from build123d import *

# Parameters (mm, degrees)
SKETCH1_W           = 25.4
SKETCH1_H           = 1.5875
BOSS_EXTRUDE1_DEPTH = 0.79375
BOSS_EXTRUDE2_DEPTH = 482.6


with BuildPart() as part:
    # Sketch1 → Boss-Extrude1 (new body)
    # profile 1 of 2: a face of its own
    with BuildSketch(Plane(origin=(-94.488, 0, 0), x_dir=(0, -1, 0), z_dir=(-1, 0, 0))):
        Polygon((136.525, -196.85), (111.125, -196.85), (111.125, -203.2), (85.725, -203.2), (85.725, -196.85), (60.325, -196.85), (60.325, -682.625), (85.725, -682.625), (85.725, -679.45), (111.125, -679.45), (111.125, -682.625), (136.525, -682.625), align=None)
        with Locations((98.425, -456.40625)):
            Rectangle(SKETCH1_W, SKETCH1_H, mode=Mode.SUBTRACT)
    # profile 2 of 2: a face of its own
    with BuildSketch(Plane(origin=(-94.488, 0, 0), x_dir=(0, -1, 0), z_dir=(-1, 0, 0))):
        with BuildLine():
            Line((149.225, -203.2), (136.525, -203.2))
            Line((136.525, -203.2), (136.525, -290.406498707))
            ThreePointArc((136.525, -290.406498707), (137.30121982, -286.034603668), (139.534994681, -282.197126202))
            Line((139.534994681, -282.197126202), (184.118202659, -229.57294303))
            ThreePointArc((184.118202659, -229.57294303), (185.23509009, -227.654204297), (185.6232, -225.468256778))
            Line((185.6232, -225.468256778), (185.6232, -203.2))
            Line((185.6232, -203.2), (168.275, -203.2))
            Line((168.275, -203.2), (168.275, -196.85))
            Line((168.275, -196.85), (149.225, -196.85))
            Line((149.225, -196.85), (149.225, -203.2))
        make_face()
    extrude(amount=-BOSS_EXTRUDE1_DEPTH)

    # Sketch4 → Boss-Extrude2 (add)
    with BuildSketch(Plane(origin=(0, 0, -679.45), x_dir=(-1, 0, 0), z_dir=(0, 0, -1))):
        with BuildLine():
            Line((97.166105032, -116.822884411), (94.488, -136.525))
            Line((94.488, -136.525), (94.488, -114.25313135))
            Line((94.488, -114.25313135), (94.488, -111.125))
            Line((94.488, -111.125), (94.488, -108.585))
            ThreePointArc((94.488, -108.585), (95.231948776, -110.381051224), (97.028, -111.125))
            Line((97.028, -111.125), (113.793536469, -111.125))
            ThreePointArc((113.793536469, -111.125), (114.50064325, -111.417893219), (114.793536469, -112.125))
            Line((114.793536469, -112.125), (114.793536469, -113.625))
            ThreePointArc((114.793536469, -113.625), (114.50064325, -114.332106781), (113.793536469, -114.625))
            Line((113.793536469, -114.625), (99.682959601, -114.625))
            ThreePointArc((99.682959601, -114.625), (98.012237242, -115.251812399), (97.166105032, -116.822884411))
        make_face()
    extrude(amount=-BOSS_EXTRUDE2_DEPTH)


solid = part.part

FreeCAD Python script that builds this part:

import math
import FreeCAD as App
import Part
import Sketcher
from FreeCAD import Vector
Q = App.Units.Quantity


def add_polygon(sketch, points):
    """Adds a closed chain of lines whose ends are joined by coincident constraints."""
    first, n = sketch.GeometryCount, len(points)
    for a, b in zip(points, points[1:] + points[:1]):
        sketch.addGeometry(Part.LineSegment(App.Vector(*a, 0), App.Vector(*b, 0)), False)
    for i in range(n):
        sketch.addConstraint(Sketcher.Constraint("Coincident", first + i, 2, first + (i + 1) % n, 1))

doc = App.newDocument("Part")
body = doc.addObject("PartDesign::Body", "Body")

# Sketch on YZ plane
sketch1 = doc.addObject("Sketcher::SketchObject", "Sketch")
body.addObject(sketch1)
sketch1.AttachmentSupport = (doc.YZ_Plane, [""])
sketch1.MapMode = "FlatFace"
sketch1.AttachmentOffset = App.Placement(Vector(0, 0, -3.72 * 25.4), App.Rotation())
sketch1.addGeometry(Part.LineSegment(Vector(-136.525, -196.85, 0), Vector(-111.125, -196.85, 0)), False)  # 0
sketch1.addGeometry(Part.LineSegment(Vector(-111.125, -196.85, 0), Vector(-111.125, -203.2, 0)), False)  # 1
sketch1.addGeometry(Part.LineSegment(Vector(-111.125, -203.2, 0), Vector(-85.725, -203.2, 0)), False)  # 2
sketch1.addGeometry(Part.LineSegment(Vector(-85.725, -203.2, 0), Vector(-85.725, -196.85, 0)), False)  # 3
sketch1.addGeometry(Part.LineSegment(Vector(-85.725, -196.85, 0), Vector(-60.325, -196.85, 0)), False)  # 4
sketch1.addGeometry(Part.LineSegment(Vector(-60.325, -196.85, 0), Vector(-60.325, -682.625, 0)), False)  # 5
sketch1.addGeometry(Part.LineSegment(Vector(-60.325, -682.625, 0), Vector(-85.725, -682.625, 0)), False)  # 6
sketch1.addGeometry(Part.LineSegment(Vector(-85.725, -682.625, 0), Vector(-85.725, -679.45, 0)), False)  # 7
sketch1.addGeometry(Part.LineSegment(Vector(-85.725, -679.45, 0), Vector(-111.125, -679.45, 0)), False)  # 8
sketch1.addGeometry(Part.LineSegment(Vector(-111.125, -679.45, 0), Vector(-111.125, -682.625, 0)), False)  # 9
sketch1.addGeometry(Part.LineSegment(Vector(-111.125, -682.625, 0), Vector(-136.525, -682.625, 0)), False)  # 10
sketch1.addGeometry(Part.LineSegment(Vector(-136.525, -682.625, 0), Vector(-136.525, -290.406499, 0)), False)  # 11
sketch1.addGeometry(Part.ArcOfCircle(Part.Circle(Vector(-149.225, -290.406499, 0), Vector(0, 0, 1), 12.7), math.radians(0), math.radians(40.271271)), False)  # 12
sketch1.addGeometry(Part.LineSegment(Vector(-139.534995, -282.197126, 0), Vector(-184.118203, -229.572943, 0)), False)  # 13
sketch1.addGeometry(Part.ArcOfCircle(Part.Circle(Vector(-179.2732, -225.468257, 0), Vector(0, 0, 1), 6.35), math.radians(180), math.radians(220.271271)), False)  # 14
sketch1.addGeometry(Part.LineSegment(Vector(-185.6232, -225.468257, 0), Vector(-185.6232, -203.2, 0)), False)  # 15
sketch1.addGeometry(Part.LineSegment(Vector(-185.6232, -203.2, 0), Vector(-168.275, -203.2, 0)), False)  # 16
sketch1.addGeometry(Part.LineSegment(Vector(-168.275, -203.2, 0), Vector(-168.275, -196.85, 0)), False)  # 17
sketch1.addGeometry(Part.LineSegment(Vector(-168.275, -196.85, 0), Vector(-149.225, -196.85, 0)), False)  # 18
sketch1.addGeometry(Part.LineSegment(Vector(-149.225, -196.85, 0), Vector(-149.225, -203.2, 0)), False)  # 19
sketch1.addGeometry(Part.LineSegment(Vector(-149.225, -203.2, 0), Vector(-136.525, -203.2, 0)), False)  # 20
sketch1.addGeometry(Part.LineSegment(Vector(-136.525, -203.2, 0), Vector(-136.525, -196.85, 0)), False)  # 21
add_polygon(sketch1, [(-111.125, -457.2), (-85.725, -457.2), (-85.725, -455.6125), (-111.125, -455.6125)])  # lines 22-25
sketch1.addConstraint([
    Sketcher.Constraint("Coincident", 0, 2, 1, 1),
    Sketcher.Constraint("Coincident", 1, 2, 2, 1),
    Sketcher.Constraint("Coincident", 2, 2, 3, 1),
    Sketcher.Constraint("Coincident", 3, 2, 4, 1),
    Sketcher.Constraint("Coincident", 4, 2, 5, 1),
    Sketcher.Constraint("Coincident", 5, 2, 6, 1),
    Sketcher.Constraint("Coincident", 6, 2, 7, 1),
    Sketcher.Constraint("Coincident", 7, 2, 8, 1),
    Sketcher.Constraint("Coincident", 8, 2, 9, 1),
    Sketcher.Constraint("Coincident", 9, 2, 10, 1),
    Sketcher.Constraint("Coincident", 10, 2, 11, 1),
    Sketcher.Constraint("Tangent", 11, 2, 12, 1),
    Sketcher.Constraint("Tangent", 12, 2, 13, 1),
    Sketcher.Constraint("Tangent", 13, 2, 14, 2),
    Sketcher.Constraint("Tangent", 14, 1, 15, 1),
    Sketcher.Constraint("Coincident", 15, 2, 16, 1),
    Sketcher.Constraint("Coincident", 16, 2, 17, 1),
    Sketcher.Constraint("Coincident", 17, 2, 18, 1),
    Sketcher.Constraint("Coincident", 18, 2, 19, 1),
    Sketcher.Constraint("Coincident", 19, 2, 20, 1),
    Sketcher.Constraint("Coincident", 20, 2, 21, 1),
    Sketcher.Constraint("Coincident", 21, 2, 0, 1),
    Sketcher.Constraint("Horizontal", 0),
    Sketcher.Constraint("Vertical", 1),
    Sketcher.Constraint("Horizontal", 2),
    Sketcher.Constraint("Vertical", 3),
    Sketcher.Constraint("Horizontal", 4),
    Sketcher.Constraint("Vertical", 5),
    Sketcher.Constraint("Horizontal", 6),
    Sketcher.Constraint("Vertical", 7),
    Sketcher.Constraint("Horizontal", 8),
    Sketcher.Constraint("Vertical", 9),
    Sketcher.Constraint("Horizontal", 10),
    Sketcher.Constraint("Vertical", 11),
    Sketcher.Constraint("Vertical", 15),
    Sketcher.Constraint("Horizontal", 16),
    Sketcher.Constraint("Vertical", 17),
    Sketcher.Constraint("Horizontal", 18),
    Sketcher.Constraint("Vertical", 19),
    Sketcher.Constraint("Horizontal", 20),
    Sketcher.Constraint("Vertical", 21),
    Sketcher.Constraint("Horizontal", 22),
    Sketcher.Constraint("Vertical", 23),
    Sketcher.Constraint("Horizontal", 24),
    Sketcher.Constraint("Vertical", 25),
    Sketcher.Constraint("Horizontal", 0, 2, 3, 2),
    Sketcher.Constraint("Horizontal", 6, 2, 9, 2),
    Sketcher.Constraint("Horizontal", 2, 2, 15, 2),
    Sketcher.Constraint("Horizontal", 4, 2, 17, 2),
    Sketcher.Constraint("Horizontal", 16, 2, 19, 2),
    Sketcher.Constraint("Vertical", 3, 2, 6, 2),
    Sketcher.Constraint("Vertical", 1, 2, 8, 2),
    Sketcher.Constraint("Vertical", 12, 3, 18, 2),
    Sketcher.Constraint("Vertical", 11, 2, 20, 2),
    Sketcher.Constraint("Vertical", 7, 2, 22, 2),
    Sketcher.Constraint("Vertical", 9, 2, 24, 2),
    Sketcher.Constraint("Equal", 0, 2),
    Sketcher.Constraint("Equal", 2, 4),
    Sketcher.Constraint("Radius", 12, Q("0.5 in")),
    Sketcher.Constraint("DistanceX", 0, 1, 0, 2, Q("1 in")),
    Sketcher.Constraint("Radius", 14, Q("0.25 in")),
    Sketcher.Constraint("DistanceY", 1, 2, -1, 1, Q("8 in")),
    Sketcher.Constraint("DistanceY", 22, 2, -1, 1, Q("18 in")),
    Sketcher.Constraint("DistanceX", 18, 1, 18, 2, Q("0.75 in")),
    Sketcher.Constraint("DistanceY", 1, 2, 1, 1, Q("0.25 in")),
    Sketcher.Constraint("DistanceX", 16, 1, 16, 2, Q("0.683 in")),
    Sketcher.Constraint("DistanceY", 5, 2, 5, 1, Q("19.125 in")),
    Sketcher.Constraint("DistanceY", 7, 1, 7, 2, Q("0.125 in")),
    Sketcher.Constraint("DistanceY", 23, 1, 23, 2, Q("0.0625 in")),
    Sketcher.Constraint("DistanceX", 12, 3, -1, 1, Q("5.875 in")),
    Sketcher.Constraint("DistanceY", 11, 1, 11, 2, 392.218501),
    Sketcher.Constraint("Distance", 13, 68.97077),
])
pad1 = doc.addObject("PartDesign::Pad", "Pad")
body.addObject(pad1)
pad1.Profile = sketch1
pad1.Length = Q("0.03125 in")

# Sketch on XY plane
sketch2 = doc.addObject("Sketcher::SketchObject", "Sketch001")
body.addObject(sketch2)
sketch2.AttachmentSupport = (doc.XY_Plane, [""])
sketch2.MapMode = "FlatFace"
sketch2.AttachmentOffset = App.Placement(Vector(0, 0, -26.75 * 25.4), App.Rotation())
sketch2.addGeometry([
    Part.LineSegment(Vector(-94.488, -136.525, 0), Vector(-97.166105, -116.822884, 0)),  # 0
    Part.ArcOfCircle(Part.Circle(Vector(-99.68296, -117.165, 0), Vector(0, 0, 1), 2.54), math.radians(7.740763), math.radians(90)),  # 1
    Part.LineSegment(Vector(-99.68296, -114.625, 0), Vector(-113.793536, -114.625, 0)),  # 2
    Part.ArcOfCircle(Part.Circle(Vector(-113.793536, -113.625, 0), Vector(0, 0, 1), 1), math.radians(-180), math.radians(-90)),  # 3
    Part.LineSegment(Vector(-114.793536, -113.625, 0), Vector(-114.793536, -112.125, 0)),  # 4
    Part.ArcOfCircle(Part.Circle(Vector(-113.793536, -112.125, 0), Vector(0, 0, 1), 1), math.radians(90), math.radians(180)),  # 5
    Part.LineSegment(Vector(-113.793536, -111.125, 0), Vector(-97.028, -111.125, 0)),  # 6
    Part.ArcOfCircle(Part.Circle(Vector(-97.028, -108.585, 0), Vector(0, 0, 1), 2.54), math.radians(-90), math.radians(0)),  # 7
    Part.LineSegment(Vector(-94.488, -108.585, 0), Vector(-94.488, -136.525, 0)),  # 8
], False)
sketch2.addConstraint([
    Sketcher.Constraint("Tangent", 0, 2, 1, 1),
    Sketcher.Constraint("Tangent", 1, 2, 2, 1),
    Sketcher.Constraint("Tangent", 2, 2, 3, 2),
    Sketcher.Constraint("Tangent", 3, 1, 4, 1),
    Sketcher.Constraint("Tangent", 4, 2, 5, 2),
    Sketcher.Constraint("Tangent", 5, 1, 6, 1),
    Sketcher.Constraint("Tangent", 6, 2, 7, 1),
    Sketcher.Constraint("Tangent", 7, 2, 8, 1),
    Sketcher.Constraint("Coincident", 8, 2, 0, 1),
    Sketcher.Constraint("Horizontal", 2),
    Sketcher.Constraint("Vertical", 4),
    Sketcher.Constraint("Horizontal", 6),
    Sketcher.Constraint("Vertical", 8),
    Sketcher.Constraint("Equal", 3, 5),
    Sketcher.Constraint("Equal", 1, 7),
    Sketcher.Constraint("Radius", 1, Q("0.1 in")),
    Sketcher.Constraint("DistanceY", 8, 2, 8, 1, Q("1.1 in")),
    Sketcher.Constraint("DistanceX", 7, 3, -1, 1, Q("3.82 in")),
    Sketcher.Constraint("Radius", 3, 1.0),
    Sketcher.Constraint("DistanceY", 7, 3, -1, 1, Q("4.275 in")),
    Sketcher.Constraint("DistanceY", 4, 1, 4, 2, 1.5),
    Sketcher.Constraint("Distance", 0, 19.8833),
    Sketcher.Constraint("DistanceX", 2, 2, 2, 1, 14.110577),
])
pad2 = doc.addObject("PartDesign::Pad", "Pad001")
body.addObject(pad2)
pad2.Profile = sketch2
pad2.Length = Q("19 in")

doc.recompute()
